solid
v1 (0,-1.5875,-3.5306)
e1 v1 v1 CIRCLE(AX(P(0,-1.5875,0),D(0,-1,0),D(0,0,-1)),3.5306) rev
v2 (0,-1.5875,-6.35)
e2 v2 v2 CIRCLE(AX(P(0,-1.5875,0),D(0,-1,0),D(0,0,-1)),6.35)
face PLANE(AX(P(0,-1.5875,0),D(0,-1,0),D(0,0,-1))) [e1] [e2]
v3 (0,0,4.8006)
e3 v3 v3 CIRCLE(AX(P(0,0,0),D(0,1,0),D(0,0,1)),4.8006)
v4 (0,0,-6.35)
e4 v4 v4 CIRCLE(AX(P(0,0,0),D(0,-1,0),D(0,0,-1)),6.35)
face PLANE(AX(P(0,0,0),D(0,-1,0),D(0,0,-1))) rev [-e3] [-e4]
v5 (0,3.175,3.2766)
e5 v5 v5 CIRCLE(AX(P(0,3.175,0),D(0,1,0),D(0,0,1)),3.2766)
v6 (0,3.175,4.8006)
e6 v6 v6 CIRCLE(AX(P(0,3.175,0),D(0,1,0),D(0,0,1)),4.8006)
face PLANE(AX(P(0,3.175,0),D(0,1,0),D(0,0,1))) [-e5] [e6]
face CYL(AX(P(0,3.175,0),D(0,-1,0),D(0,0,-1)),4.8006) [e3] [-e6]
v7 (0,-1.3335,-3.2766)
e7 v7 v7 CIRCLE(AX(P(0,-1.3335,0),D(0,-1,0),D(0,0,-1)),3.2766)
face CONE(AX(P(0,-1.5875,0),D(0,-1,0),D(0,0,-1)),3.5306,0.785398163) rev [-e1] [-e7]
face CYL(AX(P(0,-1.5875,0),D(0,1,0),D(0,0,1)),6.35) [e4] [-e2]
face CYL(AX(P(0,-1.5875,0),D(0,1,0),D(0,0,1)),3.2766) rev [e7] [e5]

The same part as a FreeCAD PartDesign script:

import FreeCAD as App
import Part
import Sketcher

V = App.Vector
Q = App.Units.Quantity


def edges_at(feature, points):
    """Names of the edges that pass closest to the given points."""
    edges = feature.Shape.Edges
    near = lambda p: min(range(len(edges)), key=lambda i: edges[i].distToShape(Part.Vertex(*p))[0])
    return sorted({f"Edge{near(p) + 1}" for p in points})

doc = App.newDocument("Part")
params = doc.addObject("Spreadsheet::Sheet", "Params")
for row, (alias, value) in enumerate([
    ("sketch1_diameter", "0.378 in"),
    ("pad1_length", "0.125 in"),
    ("sketch2_diameter", "0.5 in"),
    ("pad2_length", "0.0625 in"),
    ("sketch3_diameter", "0.258 in"),
    ("chamfer_size", "0.01 in"),
], start=1):
    params.set(f"A{row}", alias)
    params.set(f"B{row}", "=" + value)
    params.setAlias(f"B{row}", alias)

body = doc.addObject("PartDesign::Body", "Body")

sketch1 = doc.addObject("Sketcher::SketchObject", "Sketch")
body.addObject(sketch1)
sketch1.AttachmentSupport = (doc.XZ_Plane, [""])
sketch1.MapMode = "FlatFace"
sketch1.addGeometry(Part.Circle(V(0, 0, 0), V(0, 0, 1), 4.8006), False)
sketch1.addConstraint(Sketcher.Constraint("Coincident", 0, 3, -1, 1))
sketch1.addConstraint(Sketcher.Constraint("Diameter", 0, Q("0.378 in")))
sketch1.setExpression("Constraints[1]", "Params.sketch1_diameter")
pad1 = doc.addObject("PartDesign::Pad", "Pad")
body.addObject(pad1)
pad1.Profile = sketch1
pad1.setExpression("Length", "Params.pad1_length")
pad1.Reversed = True

sketch2 = doc.addObject("Sketcher::SketchObject", "Sketch001")
body.addObject(sketch2)
sketch2.AttachmentSupport = (doc.XZ_Plane, [""])
sketch2.MapMode = "FlatFace"
sketch2.addGeometry(Part.Circle(V(0, 0, 0), V(0, 0, 1), 6.35), False)
sketch2.addConstraint(Sketcher.Constraint("Coincident", 0, 3, -1, 1))
sketch2.addConstraint(Sketcher.Constraint("Diameter", 0, Q("0.5 in")))
sketch2.setExpression("Constraints[1]", "Params.sketch2_diameter")
pad2 = doc.addObject("PartDesign::Pad", "Pad001")
body.addObject(pad2)
pad2.Profile = sketch2
pad2.setExpression("Length", "Params.pad2_length")

sketch3 = doc.addObject("Sketcher::SketchObject", "Sketch002")
body.addObject(sketch3)
sketch3.AttachmentSupport = (doc.XZ_Plane, [""])
sketch3.MapMode = "FlatFace"
sketch3.AttachmentOffset = App.Placement(V(0, 0, -0.125 * 25.4), App.Rotation())
sketch3.addGeometry(Part.Circle(V(0, 0, 0), V(0, 0, 1), 3.2766), False)
sketch3.addConstraint(Sketcher.Constraint("Coincident", 0, 3, -1, 1))
sketch3.addConstraint(Sketcher.Constraint("Diameter", 0, Q("0.258 in")))
sketch3.setExpression("Constraints[1]", "Params.sketch3_diameter")
pocket1 = doc.addObject("PartDesign::Pocket", "Pocket")
body.addObject(pocket1)
pocket1.Profile = sketch3
pocket1.Type = "ThroughAll"
pocket1.Reversed = True
doc.recompute()

chamfer = doc.addObject("PartDesign::Chamfer", "Chamfer")
body.addObject(chamfer)
chamfer.Base = (pocket1, edges_at(pocket1, [(0, -1.587, -3.277)]))
chamfer.setExpression("Size", "Params.chamfer_size")

doc.recompute()
